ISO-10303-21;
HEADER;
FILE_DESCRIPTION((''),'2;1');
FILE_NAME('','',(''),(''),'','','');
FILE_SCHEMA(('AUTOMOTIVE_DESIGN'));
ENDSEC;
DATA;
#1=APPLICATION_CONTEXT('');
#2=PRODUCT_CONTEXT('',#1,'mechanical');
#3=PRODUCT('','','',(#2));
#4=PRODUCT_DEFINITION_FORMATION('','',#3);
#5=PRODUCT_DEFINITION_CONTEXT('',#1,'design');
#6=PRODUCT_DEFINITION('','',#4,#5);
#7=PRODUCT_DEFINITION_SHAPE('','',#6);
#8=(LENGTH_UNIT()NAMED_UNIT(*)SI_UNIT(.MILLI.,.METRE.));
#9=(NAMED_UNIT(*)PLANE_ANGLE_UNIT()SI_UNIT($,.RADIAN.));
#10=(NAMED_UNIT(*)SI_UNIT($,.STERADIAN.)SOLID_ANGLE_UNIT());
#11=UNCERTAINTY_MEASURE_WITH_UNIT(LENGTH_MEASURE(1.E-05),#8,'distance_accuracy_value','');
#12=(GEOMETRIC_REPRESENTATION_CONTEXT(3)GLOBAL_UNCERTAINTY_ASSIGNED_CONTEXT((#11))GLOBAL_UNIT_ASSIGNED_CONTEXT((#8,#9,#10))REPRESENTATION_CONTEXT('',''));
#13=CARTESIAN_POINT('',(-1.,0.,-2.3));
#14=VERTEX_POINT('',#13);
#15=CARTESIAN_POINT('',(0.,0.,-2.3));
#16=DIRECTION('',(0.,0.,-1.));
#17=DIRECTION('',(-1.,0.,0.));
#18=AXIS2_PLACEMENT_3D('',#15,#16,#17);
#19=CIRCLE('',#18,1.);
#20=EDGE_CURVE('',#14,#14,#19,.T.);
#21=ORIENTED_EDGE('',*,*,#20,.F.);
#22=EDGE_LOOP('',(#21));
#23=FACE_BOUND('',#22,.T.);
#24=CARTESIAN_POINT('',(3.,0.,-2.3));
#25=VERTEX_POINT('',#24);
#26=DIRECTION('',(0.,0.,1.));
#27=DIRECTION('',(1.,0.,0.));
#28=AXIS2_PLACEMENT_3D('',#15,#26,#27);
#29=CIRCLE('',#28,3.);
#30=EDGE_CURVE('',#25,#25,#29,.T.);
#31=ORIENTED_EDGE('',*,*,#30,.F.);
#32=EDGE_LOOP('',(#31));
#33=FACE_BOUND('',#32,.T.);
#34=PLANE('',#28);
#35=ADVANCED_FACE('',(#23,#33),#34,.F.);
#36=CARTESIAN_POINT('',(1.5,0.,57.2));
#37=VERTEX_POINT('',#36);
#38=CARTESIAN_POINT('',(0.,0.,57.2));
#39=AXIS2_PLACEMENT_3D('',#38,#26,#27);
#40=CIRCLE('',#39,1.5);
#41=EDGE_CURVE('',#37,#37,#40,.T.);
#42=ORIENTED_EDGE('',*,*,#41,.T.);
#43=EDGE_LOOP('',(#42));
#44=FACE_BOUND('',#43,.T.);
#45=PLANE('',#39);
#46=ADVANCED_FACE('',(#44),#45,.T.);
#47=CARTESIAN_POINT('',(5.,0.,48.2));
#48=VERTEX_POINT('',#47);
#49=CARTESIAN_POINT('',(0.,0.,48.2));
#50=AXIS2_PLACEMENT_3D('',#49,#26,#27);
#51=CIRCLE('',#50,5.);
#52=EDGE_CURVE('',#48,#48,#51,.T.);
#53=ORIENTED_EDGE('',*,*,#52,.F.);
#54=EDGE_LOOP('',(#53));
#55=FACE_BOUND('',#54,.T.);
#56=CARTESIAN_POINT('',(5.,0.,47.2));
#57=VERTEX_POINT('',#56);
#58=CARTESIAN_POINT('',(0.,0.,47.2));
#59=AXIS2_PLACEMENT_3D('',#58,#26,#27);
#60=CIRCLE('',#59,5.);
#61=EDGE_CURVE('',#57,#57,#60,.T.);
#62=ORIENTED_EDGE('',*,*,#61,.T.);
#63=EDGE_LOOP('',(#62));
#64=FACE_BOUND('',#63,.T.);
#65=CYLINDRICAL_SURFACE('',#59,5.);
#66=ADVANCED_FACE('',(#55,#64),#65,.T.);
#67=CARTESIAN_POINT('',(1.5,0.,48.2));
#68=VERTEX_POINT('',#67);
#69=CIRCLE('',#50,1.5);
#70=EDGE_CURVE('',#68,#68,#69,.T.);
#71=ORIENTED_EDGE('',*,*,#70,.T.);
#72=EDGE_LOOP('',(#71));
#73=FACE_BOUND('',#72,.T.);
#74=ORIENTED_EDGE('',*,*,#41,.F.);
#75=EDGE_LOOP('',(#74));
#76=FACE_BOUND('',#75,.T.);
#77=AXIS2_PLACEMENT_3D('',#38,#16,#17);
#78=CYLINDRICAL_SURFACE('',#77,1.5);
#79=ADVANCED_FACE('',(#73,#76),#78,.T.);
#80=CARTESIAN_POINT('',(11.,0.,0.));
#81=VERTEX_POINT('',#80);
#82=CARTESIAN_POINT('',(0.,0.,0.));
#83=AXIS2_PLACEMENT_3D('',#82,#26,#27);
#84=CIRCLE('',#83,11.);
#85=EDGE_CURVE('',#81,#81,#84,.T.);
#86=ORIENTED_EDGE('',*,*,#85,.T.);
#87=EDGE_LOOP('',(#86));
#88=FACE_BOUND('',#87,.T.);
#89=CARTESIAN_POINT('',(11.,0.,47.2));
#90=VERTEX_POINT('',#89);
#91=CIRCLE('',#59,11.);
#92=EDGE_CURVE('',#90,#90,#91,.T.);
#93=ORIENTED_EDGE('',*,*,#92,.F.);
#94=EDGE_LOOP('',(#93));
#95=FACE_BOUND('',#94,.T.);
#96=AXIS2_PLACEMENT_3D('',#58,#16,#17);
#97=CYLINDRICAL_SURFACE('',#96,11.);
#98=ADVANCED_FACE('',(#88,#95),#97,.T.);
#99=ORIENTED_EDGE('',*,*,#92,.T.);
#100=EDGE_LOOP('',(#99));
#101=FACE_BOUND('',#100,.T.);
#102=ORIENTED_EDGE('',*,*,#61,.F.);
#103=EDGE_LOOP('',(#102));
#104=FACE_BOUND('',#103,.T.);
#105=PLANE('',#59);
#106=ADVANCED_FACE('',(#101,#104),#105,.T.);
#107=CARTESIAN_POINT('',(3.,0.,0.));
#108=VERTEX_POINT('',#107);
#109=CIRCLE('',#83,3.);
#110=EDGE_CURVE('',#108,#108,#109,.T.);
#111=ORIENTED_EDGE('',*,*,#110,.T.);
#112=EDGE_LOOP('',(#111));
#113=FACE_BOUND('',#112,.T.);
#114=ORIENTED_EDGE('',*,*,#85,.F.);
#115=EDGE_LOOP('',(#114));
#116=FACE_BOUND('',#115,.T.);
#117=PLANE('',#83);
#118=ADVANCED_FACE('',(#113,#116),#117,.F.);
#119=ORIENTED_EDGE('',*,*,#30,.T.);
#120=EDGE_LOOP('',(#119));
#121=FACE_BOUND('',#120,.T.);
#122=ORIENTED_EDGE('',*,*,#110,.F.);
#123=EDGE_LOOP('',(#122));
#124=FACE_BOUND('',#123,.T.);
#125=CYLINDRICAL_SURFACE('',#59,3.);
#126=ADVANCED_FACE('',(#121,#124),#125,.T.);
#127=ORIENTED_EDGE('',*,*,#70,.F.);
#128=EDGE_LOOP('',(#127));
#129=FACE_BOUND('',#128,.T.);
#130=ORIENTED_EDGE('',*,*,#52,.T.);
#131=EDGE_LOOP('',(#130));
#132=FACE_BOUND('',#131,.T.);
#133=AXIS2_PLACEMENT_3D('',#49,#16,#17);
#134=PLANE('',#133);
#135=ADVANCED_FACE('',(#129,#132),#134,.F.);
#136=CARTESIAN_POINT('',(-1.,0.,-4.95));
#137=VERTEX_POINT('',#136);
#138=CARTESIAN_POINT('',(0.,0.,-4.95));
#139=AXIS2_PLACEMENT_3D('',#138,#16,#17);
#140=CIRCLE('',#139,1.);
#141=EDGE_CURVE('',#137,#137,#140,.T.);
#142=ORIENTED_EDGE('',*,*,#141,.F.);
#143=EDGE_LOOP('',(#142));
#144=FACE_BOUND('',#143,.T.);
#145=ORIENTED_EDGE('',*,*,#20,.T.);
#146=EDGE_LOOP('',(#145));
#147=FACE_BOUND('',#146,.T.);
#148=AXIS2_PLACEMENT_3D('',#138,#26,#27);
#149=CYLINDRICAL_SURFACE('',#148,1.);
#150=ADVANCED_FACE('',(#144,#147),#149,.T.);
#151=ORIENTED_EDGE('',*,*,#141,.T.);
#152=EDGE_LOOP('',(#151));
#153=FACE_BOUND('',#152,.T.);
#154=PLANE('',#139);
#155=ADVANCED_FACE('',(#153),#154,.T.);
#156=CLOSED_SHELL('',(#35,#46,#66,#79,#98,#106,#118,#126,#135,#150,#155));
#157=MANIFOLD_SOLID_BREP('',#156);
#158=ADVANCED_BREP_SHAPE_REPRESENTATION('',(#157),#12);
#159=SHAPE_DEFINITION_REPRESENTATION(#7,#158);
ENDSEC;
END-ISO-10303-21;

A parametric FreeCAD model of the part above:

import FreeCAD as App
import Part
import Sketcher

V = App.Vector
Q = App.Units.Quantity

doc = App.newDocument("Part")
body = doc.addObject("PartDesign::Body", "Body")

sketch1 = body.newObject("Sketcher::SketchObject", "Sketch")
sketch1.AttachmentSupport = (doc.getObject("XY_Plane"), [""])
sketch1.MapMode = "FlatFace"
sketch1.addGeometry(Part.Circle(V(0, 0, 0), V(0, 0, 1), 11), False)
sketch1.addConstraint(Sketcher.Constraint("Coincident", 0, 3, -1, 1))
sketch1.addConstraint(Sketcher.Constraint("Diameter", 0, Q("22 mm")))
pad1 = body.newObject("PartDesign::Pad", "Pad")
pad1.Profile = sketch1
pad1.Length = 47.2

sketch2 = body.newObject("Sketcher::SketchObject", "Sketch001")
sketch2.AttachmentSupport = (doc.getObject("YZ_Plane"), [""])
sketch2.MapMode = "FlatFace"
sketch2.addGeometry(Part.LineSegment(V(5, 48.2, 0), V(0, 48.2, 0)), False)
sketch2.addGeometry(Part.LineSegment(V(0, 48.2, 0), V(0, 47.2, 0)), False)
sketch2.addGeometry(Part.LineSegment(V(0, 47.2, 0), V(5, 47.2, 0)), False)
sketch2.addGeometry(Part.LineSegment(V(5, 47.2, 0), V(5, 48.2, 0)), False)
sketch2.addConstraint(Sketcher.Constraint("Coincident", 0, 2, 1, 1))
sketch2.addConstraint(Sketcher.Constraint("Coincident", 1, 2, 2, 1))
sketch2.addConstraint(Sketcher.Constraint("Coincident", 2, 2, 3, 1))
sketch2.addConstraint(Sketcher.Constraint("Coincident", 3, 2, 0, 1))
sketch2.addConstraint(Sketcher.Constraint("Horizontal", 0))
sketch2.addConstraint(Sketcher.Constraint("Vertical", 1))
sketch2.addConstraint(Sketcher.Constraint("Horizontal", 2))
sketch2.addConstraint(Sketcher.Constraint("Vertical", 3))
sketch2.addConstraint(Sketcher.Constraint("PointOnObject", 0, 2, -2))
sketch2.addConstraint(Sketcher.Constraint("DistanceX", 0, 2, 0, 1, Q("5 mm")))
sketch2.addConstraint(Sketcher.Constraint("DistanceY", 1, 2, 1, 1, Q("1 mm")))
sketch2.addConstraint(Sketcher.Constraint("DistanceY", -1, 1, 0, 2, Q("48.2 mm")))
revolution = body.newObject("PartDesign::Revolution", "Revolution")
revolution.Profile = sketch2
revolution.ReferenceAxis = (sketch2, ["V_Axis"])
revolution.Angle = 360

sketch3 = body.newObject("Sketcher::SketchObject", "Sketch002")
sketch3.AttachmentSupport = (doc.getObject("YZ_Plane"), [""])
sketch3.MapMode = "FlatFace"
sketch3.addGeometry(Part.LineSegment(V(3, 0, 0), V(0, 0, 0)), False)
sketch3.addGeometry(Part.LineSegment(V(0, 0, 0), V(0, -2.3, 0)), False)
sketch3.addGeometry(Part.LineSegment(V(0, -2.3, 0), V(3, -2.3, 0)), False)
sketch3.addGeometry(Part.LineSegment(V(3, -2.3, 0), V(3, 0, 0)), False)
sketch3.addConstraint(Sketcher.Constraint("Coincident", 0, 2, 1, 1))
sketch3.addConstraint(Sketcher.Constraint("Coincident", 1, 2, 2, 1))
sketch3.addConstraint(Sketcher.Constraint("Coincident", 2, 2, 3, 1))
sketch3.addConstraint(Sketcher.Constraint("Coincident", 3, 2, 0, 1))
sketch3.addConstraint(Sketcher.Constraint("Horizontal", 0))
sketch3.addConstraint(Sketcher.Constraint("Vertical", 1))
sketch3.addConstraint(Sketcher.Constraint("Horizontal", 2))
sketch3.addConstraint(Sketcher.Constraint("Vertical", 3))
sketch3.addConstraint(Sketcher.Constraint("Coincident", 0, 2, -1, 1))
sketch3.addConstraint(Sketcher.Constraint("DistanceX", 0, 2, 0, 1, Q("3 mm")))
sketch3.addConstraint(Sketcher.Constraint("DistanceY", 1, 2, 1, 1, Q("2.3 mm")))
revolution2 = body.newObject("PartDesign::Revolution", "Revolution001")
revolution2.Profile = sketch3
revolution2.ReferenceAxis = (sketch3, ["V_Axis"])
revolution2.Angle = 360

sketch4 = body.newObject("Sketcher::SketchObject", "Sketch003")
sketch4.AttachmentSupport = (doc.getObject("XY_Plane"), [""])
sketch4.MapMode = "FlatFace"
sketch4.AttachmentOffset = App.Placement(V(0, 0, 48.2), App.Rotation())
sketch4.addGeometry(Part.Circle(V(0, 0, 0), V(0, 0, 1), 1.5), False)
sketch4.addConstraint(Sketcher.Constraint("Coincident", 0, 3, -1, 1))
sketch4.addConstraint(Sketcher.Constraint("Diameter", 0, Q("3 mm")))
pad2 = body.newObject("PartDesign::Pad", "Pad001")
pad2.Profile = sketch4
pad2.Length = 9

sketch5 = body.newObject("Sketcher::SketchObject", "Sketch004")
sketch5.AttachmentSupport = (doc.getObject("XY_Plane"), [""])
sketch5.MapMode = "FlatFace"
sketch5.AttachmentOffset = App.Placement(V(0, 0, -2.3), App.Rotation())
sketch5.addGeometry(Part.Circle(V(0, 0, 0), V(0, 0, 1), 1), False)
sketch5.addConstraint(Sketcher.Constraint("Coincident", 0, 3, -1, 1))
sketch5.addConstraint(Sketcher.Constraint("Diameter", 0, Q("2 mm")))
pad3 = body.newObject("PartDesign::Pad", "Pad002")
pad3.Profile = sketch5
pad3.Length = 2.65
pad3.Reversed = True

doc.recompute()
